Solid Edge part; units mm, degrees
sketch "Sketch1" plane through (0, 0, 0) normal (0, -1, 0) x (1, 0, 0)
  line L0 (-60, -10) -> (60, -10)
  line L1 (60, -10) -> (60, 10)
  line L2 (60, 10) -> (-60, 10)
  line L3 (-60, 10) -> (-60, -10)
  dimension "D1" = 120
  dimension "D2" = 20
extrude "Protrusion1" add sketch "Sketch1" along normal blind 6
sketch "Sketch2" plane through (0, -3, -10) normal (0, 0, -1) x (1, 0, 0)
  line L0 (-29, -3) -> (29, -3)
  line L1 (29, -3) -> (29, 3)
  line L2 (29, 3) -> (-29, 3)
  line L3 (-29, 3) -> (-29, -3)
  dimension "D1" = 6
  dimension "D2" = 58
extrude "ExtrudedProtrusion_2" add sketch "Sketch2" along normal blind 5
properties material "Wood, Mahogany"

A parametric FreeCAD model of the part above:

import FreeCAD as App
import Part
import Sketcher

V = App.Vector
Q = App.Units.Quantity


def add_polygon(sketch, points):
    """Adds a closed chain of lines whose ends are joined by coincident constraints."""
    first, n = sketch.GeometryCount, len(points)
    for a, b in zip(points, points[1:] + points[:1]):
        sketch.addGeometry(Part.LineSegment(App.Vector(*a, 0), App.Vector(*b, 0)), False)
    for i in range(n):
        sketch.addConstraint(Sketcher.Constraint("Coincident", first + i, 2, first + (i + 1) % n, 1))

doc = App.newDocument("Part")
body = doc.addObject("PartDesign::Body", "Body")

sketch1 = body.newObject("Sketcher::SketchObject", "Sketch")
sketch1.AttachmentSupport = (doc.getObject("XZ_Plane"), [""])
sketch1.MapMode = "FlatFace"
add_polygon(sketch1, [(-60, 10), (-60, -10), (60, -10), (60, 10)])
sketch1.addConstraint([
    Sketcher.Constraint("Vertical", 0),
    Sketcher.Constraint("Horizontal", 1),
    Sketcher.Constraint("Vertical", 2),
    Sketcher.Constraint("Horizontal", 3),
    Sketcher.Constraint("Symmetric", 0, 2, 2, 2, -1, 1),
    Sketcher.Constraint("DistanceX", 0, 2, -1, 1, Q("60 mm")),
    Sketcher.Constraint("DistanceY", 0, 2, 0, 1, Q("20 mm")),
])
pad1 = body.newObject("PartDesign::Pad", "Pad")
pad1.Profile = sketch1
pad1.Length = 6

sketch2 = body.newObject("Sketcher::SketchObject", "Sketch001")
sketch2.AttachmentSupport = (doc.getObject("XY_Plane"), [""])
sketch2.MapMode = "FlatFace"
sketch2.AttachmentOffset = App.Placement(V(0, 0, -10), App.Rotation())
add_polygon(sketch2, [(-29, -6), (-29, 0), (29, 0), (29, -6)])
sketch2.addConstraint([
    Sketcher.Constraint("Vertical", 0),
    Sketcher.Constraint("Horizontal", 1),
    Sketcher.Constraint("Vertical", 2),
    Sketcher.Constraint("Horizontal", 3),
    Sketcher.Constraint("Symmetric", 0, 2, 1, 2, -1, 1),
    Sketcher.Constraint("DistanceX", 0, 2, -1, 1, Q("29 mm")),
    Sketcher.Constraint("DistanceY", 0, 1, 0, 2, Q("6 mm")),
])
pad2 = body.newObject("PartDesign::Pad", "Pad001")
pad2.Profile = sketch2
pad2.Length = 5
pad2.Reversed = True

doc.recompute()
